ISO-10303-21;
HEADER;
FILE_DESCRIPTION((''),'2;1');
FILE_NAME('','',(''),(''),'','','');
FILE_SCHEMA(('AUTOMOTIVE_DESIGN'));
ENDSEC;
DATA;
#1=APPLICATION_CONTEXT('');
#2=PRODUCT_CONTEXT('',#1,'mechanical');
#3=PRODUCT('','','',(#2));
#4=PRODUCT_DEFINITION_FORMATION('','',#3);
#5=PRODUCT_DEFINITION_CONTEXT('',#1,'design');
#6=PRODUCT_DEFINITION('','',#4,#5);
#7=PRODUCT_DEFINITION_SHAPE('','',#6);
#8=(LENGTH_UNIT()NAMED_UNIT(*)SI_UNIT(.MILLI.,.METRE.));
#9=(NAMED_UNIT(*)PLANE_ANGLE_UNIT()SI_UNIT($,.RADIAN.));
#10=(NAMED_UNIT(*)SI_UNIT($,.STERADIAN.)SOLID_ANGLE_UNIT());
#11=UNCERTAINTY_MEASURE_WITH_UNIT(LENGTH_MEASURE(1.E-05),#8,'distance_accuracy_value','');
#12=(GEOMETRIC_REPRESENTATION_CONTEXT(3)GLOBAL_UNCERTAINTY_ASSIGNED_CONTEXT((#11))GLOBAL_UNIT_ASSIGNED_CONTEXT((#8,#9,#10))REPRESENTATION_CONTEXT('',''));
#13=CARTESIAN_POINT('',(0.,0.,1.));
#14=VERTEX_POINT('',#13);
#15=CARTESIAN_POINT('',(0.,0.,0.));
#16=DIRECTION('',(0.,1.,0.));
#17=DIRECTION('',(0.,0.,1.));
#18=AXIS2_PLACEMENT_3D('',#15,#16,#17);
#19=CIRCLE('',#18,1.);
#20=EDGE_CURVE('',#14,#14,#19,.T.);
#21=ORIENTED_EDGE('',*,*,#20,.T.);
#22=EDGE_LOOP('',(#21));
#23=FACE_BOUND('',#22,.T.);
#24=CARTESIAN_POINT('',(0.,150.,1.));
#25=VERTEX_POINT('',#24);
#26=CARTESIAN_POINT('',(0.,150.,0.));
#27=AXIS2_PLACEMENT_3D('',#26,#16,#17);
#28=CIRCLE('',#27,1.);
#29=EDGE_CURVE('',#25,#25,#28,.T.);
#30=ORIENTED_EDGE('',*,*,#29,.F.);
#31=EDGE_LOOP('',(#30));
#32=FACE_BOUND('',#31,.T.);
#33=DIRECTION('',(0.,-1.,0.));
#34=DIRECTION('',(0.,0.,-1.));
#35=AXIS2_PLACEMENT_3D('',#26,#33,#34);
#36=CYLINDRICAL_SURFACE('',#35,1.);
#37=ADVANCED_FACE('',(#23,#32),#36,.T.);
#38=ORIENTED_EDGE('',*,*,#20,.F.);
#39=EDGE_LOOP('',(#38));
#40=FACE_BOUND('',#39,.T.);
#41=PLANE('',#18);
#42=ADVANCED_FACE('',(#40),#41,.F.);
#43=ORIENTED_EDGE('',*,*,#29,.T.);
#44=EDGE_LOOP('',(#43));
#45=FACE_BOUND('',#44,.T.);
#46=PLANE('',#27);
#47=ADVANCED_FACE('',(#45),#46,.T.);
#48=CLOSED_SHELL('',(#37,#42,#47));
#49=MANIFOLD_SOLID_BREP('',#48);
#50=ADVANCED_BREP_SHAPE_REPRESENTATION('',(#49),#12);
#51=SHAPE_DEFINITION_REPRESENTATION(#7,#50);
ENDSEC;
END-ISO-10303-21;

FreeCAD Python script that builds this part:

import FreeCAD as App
import Part
import Sketcher

V = App.Vector
Q = App.Units.Quantity

doc = App.newDocument("Part")
body = doc.addObject("PartDesign::Body", "Body")

# Sketch on XZ plane
sketch1 = body.newObject("Sketcher::SketchObject", "Sketch")
sketch1.AttachmentSupport = (doc.getObject("XZ_Plane"), [""])
sketch1.MapMode = "FlatFace"
sketch1.addGeometry(Part.Circle(V(0, 0, 0), V(0, 0, 1), 1), False)
sketch1.addConstraint([
    Sketcher.Constraint("Coincident", 0, 3, -1, 1),
    Sketcher.Constraint("Diameter", 0, Q("2 mm")),
])
pad1 = body.newObject("PartDesign::Pad", "Pad")
pad1.Profile = sketch1
pad1.Length = 150
pad1.Reversed = True

doc.recompute()
